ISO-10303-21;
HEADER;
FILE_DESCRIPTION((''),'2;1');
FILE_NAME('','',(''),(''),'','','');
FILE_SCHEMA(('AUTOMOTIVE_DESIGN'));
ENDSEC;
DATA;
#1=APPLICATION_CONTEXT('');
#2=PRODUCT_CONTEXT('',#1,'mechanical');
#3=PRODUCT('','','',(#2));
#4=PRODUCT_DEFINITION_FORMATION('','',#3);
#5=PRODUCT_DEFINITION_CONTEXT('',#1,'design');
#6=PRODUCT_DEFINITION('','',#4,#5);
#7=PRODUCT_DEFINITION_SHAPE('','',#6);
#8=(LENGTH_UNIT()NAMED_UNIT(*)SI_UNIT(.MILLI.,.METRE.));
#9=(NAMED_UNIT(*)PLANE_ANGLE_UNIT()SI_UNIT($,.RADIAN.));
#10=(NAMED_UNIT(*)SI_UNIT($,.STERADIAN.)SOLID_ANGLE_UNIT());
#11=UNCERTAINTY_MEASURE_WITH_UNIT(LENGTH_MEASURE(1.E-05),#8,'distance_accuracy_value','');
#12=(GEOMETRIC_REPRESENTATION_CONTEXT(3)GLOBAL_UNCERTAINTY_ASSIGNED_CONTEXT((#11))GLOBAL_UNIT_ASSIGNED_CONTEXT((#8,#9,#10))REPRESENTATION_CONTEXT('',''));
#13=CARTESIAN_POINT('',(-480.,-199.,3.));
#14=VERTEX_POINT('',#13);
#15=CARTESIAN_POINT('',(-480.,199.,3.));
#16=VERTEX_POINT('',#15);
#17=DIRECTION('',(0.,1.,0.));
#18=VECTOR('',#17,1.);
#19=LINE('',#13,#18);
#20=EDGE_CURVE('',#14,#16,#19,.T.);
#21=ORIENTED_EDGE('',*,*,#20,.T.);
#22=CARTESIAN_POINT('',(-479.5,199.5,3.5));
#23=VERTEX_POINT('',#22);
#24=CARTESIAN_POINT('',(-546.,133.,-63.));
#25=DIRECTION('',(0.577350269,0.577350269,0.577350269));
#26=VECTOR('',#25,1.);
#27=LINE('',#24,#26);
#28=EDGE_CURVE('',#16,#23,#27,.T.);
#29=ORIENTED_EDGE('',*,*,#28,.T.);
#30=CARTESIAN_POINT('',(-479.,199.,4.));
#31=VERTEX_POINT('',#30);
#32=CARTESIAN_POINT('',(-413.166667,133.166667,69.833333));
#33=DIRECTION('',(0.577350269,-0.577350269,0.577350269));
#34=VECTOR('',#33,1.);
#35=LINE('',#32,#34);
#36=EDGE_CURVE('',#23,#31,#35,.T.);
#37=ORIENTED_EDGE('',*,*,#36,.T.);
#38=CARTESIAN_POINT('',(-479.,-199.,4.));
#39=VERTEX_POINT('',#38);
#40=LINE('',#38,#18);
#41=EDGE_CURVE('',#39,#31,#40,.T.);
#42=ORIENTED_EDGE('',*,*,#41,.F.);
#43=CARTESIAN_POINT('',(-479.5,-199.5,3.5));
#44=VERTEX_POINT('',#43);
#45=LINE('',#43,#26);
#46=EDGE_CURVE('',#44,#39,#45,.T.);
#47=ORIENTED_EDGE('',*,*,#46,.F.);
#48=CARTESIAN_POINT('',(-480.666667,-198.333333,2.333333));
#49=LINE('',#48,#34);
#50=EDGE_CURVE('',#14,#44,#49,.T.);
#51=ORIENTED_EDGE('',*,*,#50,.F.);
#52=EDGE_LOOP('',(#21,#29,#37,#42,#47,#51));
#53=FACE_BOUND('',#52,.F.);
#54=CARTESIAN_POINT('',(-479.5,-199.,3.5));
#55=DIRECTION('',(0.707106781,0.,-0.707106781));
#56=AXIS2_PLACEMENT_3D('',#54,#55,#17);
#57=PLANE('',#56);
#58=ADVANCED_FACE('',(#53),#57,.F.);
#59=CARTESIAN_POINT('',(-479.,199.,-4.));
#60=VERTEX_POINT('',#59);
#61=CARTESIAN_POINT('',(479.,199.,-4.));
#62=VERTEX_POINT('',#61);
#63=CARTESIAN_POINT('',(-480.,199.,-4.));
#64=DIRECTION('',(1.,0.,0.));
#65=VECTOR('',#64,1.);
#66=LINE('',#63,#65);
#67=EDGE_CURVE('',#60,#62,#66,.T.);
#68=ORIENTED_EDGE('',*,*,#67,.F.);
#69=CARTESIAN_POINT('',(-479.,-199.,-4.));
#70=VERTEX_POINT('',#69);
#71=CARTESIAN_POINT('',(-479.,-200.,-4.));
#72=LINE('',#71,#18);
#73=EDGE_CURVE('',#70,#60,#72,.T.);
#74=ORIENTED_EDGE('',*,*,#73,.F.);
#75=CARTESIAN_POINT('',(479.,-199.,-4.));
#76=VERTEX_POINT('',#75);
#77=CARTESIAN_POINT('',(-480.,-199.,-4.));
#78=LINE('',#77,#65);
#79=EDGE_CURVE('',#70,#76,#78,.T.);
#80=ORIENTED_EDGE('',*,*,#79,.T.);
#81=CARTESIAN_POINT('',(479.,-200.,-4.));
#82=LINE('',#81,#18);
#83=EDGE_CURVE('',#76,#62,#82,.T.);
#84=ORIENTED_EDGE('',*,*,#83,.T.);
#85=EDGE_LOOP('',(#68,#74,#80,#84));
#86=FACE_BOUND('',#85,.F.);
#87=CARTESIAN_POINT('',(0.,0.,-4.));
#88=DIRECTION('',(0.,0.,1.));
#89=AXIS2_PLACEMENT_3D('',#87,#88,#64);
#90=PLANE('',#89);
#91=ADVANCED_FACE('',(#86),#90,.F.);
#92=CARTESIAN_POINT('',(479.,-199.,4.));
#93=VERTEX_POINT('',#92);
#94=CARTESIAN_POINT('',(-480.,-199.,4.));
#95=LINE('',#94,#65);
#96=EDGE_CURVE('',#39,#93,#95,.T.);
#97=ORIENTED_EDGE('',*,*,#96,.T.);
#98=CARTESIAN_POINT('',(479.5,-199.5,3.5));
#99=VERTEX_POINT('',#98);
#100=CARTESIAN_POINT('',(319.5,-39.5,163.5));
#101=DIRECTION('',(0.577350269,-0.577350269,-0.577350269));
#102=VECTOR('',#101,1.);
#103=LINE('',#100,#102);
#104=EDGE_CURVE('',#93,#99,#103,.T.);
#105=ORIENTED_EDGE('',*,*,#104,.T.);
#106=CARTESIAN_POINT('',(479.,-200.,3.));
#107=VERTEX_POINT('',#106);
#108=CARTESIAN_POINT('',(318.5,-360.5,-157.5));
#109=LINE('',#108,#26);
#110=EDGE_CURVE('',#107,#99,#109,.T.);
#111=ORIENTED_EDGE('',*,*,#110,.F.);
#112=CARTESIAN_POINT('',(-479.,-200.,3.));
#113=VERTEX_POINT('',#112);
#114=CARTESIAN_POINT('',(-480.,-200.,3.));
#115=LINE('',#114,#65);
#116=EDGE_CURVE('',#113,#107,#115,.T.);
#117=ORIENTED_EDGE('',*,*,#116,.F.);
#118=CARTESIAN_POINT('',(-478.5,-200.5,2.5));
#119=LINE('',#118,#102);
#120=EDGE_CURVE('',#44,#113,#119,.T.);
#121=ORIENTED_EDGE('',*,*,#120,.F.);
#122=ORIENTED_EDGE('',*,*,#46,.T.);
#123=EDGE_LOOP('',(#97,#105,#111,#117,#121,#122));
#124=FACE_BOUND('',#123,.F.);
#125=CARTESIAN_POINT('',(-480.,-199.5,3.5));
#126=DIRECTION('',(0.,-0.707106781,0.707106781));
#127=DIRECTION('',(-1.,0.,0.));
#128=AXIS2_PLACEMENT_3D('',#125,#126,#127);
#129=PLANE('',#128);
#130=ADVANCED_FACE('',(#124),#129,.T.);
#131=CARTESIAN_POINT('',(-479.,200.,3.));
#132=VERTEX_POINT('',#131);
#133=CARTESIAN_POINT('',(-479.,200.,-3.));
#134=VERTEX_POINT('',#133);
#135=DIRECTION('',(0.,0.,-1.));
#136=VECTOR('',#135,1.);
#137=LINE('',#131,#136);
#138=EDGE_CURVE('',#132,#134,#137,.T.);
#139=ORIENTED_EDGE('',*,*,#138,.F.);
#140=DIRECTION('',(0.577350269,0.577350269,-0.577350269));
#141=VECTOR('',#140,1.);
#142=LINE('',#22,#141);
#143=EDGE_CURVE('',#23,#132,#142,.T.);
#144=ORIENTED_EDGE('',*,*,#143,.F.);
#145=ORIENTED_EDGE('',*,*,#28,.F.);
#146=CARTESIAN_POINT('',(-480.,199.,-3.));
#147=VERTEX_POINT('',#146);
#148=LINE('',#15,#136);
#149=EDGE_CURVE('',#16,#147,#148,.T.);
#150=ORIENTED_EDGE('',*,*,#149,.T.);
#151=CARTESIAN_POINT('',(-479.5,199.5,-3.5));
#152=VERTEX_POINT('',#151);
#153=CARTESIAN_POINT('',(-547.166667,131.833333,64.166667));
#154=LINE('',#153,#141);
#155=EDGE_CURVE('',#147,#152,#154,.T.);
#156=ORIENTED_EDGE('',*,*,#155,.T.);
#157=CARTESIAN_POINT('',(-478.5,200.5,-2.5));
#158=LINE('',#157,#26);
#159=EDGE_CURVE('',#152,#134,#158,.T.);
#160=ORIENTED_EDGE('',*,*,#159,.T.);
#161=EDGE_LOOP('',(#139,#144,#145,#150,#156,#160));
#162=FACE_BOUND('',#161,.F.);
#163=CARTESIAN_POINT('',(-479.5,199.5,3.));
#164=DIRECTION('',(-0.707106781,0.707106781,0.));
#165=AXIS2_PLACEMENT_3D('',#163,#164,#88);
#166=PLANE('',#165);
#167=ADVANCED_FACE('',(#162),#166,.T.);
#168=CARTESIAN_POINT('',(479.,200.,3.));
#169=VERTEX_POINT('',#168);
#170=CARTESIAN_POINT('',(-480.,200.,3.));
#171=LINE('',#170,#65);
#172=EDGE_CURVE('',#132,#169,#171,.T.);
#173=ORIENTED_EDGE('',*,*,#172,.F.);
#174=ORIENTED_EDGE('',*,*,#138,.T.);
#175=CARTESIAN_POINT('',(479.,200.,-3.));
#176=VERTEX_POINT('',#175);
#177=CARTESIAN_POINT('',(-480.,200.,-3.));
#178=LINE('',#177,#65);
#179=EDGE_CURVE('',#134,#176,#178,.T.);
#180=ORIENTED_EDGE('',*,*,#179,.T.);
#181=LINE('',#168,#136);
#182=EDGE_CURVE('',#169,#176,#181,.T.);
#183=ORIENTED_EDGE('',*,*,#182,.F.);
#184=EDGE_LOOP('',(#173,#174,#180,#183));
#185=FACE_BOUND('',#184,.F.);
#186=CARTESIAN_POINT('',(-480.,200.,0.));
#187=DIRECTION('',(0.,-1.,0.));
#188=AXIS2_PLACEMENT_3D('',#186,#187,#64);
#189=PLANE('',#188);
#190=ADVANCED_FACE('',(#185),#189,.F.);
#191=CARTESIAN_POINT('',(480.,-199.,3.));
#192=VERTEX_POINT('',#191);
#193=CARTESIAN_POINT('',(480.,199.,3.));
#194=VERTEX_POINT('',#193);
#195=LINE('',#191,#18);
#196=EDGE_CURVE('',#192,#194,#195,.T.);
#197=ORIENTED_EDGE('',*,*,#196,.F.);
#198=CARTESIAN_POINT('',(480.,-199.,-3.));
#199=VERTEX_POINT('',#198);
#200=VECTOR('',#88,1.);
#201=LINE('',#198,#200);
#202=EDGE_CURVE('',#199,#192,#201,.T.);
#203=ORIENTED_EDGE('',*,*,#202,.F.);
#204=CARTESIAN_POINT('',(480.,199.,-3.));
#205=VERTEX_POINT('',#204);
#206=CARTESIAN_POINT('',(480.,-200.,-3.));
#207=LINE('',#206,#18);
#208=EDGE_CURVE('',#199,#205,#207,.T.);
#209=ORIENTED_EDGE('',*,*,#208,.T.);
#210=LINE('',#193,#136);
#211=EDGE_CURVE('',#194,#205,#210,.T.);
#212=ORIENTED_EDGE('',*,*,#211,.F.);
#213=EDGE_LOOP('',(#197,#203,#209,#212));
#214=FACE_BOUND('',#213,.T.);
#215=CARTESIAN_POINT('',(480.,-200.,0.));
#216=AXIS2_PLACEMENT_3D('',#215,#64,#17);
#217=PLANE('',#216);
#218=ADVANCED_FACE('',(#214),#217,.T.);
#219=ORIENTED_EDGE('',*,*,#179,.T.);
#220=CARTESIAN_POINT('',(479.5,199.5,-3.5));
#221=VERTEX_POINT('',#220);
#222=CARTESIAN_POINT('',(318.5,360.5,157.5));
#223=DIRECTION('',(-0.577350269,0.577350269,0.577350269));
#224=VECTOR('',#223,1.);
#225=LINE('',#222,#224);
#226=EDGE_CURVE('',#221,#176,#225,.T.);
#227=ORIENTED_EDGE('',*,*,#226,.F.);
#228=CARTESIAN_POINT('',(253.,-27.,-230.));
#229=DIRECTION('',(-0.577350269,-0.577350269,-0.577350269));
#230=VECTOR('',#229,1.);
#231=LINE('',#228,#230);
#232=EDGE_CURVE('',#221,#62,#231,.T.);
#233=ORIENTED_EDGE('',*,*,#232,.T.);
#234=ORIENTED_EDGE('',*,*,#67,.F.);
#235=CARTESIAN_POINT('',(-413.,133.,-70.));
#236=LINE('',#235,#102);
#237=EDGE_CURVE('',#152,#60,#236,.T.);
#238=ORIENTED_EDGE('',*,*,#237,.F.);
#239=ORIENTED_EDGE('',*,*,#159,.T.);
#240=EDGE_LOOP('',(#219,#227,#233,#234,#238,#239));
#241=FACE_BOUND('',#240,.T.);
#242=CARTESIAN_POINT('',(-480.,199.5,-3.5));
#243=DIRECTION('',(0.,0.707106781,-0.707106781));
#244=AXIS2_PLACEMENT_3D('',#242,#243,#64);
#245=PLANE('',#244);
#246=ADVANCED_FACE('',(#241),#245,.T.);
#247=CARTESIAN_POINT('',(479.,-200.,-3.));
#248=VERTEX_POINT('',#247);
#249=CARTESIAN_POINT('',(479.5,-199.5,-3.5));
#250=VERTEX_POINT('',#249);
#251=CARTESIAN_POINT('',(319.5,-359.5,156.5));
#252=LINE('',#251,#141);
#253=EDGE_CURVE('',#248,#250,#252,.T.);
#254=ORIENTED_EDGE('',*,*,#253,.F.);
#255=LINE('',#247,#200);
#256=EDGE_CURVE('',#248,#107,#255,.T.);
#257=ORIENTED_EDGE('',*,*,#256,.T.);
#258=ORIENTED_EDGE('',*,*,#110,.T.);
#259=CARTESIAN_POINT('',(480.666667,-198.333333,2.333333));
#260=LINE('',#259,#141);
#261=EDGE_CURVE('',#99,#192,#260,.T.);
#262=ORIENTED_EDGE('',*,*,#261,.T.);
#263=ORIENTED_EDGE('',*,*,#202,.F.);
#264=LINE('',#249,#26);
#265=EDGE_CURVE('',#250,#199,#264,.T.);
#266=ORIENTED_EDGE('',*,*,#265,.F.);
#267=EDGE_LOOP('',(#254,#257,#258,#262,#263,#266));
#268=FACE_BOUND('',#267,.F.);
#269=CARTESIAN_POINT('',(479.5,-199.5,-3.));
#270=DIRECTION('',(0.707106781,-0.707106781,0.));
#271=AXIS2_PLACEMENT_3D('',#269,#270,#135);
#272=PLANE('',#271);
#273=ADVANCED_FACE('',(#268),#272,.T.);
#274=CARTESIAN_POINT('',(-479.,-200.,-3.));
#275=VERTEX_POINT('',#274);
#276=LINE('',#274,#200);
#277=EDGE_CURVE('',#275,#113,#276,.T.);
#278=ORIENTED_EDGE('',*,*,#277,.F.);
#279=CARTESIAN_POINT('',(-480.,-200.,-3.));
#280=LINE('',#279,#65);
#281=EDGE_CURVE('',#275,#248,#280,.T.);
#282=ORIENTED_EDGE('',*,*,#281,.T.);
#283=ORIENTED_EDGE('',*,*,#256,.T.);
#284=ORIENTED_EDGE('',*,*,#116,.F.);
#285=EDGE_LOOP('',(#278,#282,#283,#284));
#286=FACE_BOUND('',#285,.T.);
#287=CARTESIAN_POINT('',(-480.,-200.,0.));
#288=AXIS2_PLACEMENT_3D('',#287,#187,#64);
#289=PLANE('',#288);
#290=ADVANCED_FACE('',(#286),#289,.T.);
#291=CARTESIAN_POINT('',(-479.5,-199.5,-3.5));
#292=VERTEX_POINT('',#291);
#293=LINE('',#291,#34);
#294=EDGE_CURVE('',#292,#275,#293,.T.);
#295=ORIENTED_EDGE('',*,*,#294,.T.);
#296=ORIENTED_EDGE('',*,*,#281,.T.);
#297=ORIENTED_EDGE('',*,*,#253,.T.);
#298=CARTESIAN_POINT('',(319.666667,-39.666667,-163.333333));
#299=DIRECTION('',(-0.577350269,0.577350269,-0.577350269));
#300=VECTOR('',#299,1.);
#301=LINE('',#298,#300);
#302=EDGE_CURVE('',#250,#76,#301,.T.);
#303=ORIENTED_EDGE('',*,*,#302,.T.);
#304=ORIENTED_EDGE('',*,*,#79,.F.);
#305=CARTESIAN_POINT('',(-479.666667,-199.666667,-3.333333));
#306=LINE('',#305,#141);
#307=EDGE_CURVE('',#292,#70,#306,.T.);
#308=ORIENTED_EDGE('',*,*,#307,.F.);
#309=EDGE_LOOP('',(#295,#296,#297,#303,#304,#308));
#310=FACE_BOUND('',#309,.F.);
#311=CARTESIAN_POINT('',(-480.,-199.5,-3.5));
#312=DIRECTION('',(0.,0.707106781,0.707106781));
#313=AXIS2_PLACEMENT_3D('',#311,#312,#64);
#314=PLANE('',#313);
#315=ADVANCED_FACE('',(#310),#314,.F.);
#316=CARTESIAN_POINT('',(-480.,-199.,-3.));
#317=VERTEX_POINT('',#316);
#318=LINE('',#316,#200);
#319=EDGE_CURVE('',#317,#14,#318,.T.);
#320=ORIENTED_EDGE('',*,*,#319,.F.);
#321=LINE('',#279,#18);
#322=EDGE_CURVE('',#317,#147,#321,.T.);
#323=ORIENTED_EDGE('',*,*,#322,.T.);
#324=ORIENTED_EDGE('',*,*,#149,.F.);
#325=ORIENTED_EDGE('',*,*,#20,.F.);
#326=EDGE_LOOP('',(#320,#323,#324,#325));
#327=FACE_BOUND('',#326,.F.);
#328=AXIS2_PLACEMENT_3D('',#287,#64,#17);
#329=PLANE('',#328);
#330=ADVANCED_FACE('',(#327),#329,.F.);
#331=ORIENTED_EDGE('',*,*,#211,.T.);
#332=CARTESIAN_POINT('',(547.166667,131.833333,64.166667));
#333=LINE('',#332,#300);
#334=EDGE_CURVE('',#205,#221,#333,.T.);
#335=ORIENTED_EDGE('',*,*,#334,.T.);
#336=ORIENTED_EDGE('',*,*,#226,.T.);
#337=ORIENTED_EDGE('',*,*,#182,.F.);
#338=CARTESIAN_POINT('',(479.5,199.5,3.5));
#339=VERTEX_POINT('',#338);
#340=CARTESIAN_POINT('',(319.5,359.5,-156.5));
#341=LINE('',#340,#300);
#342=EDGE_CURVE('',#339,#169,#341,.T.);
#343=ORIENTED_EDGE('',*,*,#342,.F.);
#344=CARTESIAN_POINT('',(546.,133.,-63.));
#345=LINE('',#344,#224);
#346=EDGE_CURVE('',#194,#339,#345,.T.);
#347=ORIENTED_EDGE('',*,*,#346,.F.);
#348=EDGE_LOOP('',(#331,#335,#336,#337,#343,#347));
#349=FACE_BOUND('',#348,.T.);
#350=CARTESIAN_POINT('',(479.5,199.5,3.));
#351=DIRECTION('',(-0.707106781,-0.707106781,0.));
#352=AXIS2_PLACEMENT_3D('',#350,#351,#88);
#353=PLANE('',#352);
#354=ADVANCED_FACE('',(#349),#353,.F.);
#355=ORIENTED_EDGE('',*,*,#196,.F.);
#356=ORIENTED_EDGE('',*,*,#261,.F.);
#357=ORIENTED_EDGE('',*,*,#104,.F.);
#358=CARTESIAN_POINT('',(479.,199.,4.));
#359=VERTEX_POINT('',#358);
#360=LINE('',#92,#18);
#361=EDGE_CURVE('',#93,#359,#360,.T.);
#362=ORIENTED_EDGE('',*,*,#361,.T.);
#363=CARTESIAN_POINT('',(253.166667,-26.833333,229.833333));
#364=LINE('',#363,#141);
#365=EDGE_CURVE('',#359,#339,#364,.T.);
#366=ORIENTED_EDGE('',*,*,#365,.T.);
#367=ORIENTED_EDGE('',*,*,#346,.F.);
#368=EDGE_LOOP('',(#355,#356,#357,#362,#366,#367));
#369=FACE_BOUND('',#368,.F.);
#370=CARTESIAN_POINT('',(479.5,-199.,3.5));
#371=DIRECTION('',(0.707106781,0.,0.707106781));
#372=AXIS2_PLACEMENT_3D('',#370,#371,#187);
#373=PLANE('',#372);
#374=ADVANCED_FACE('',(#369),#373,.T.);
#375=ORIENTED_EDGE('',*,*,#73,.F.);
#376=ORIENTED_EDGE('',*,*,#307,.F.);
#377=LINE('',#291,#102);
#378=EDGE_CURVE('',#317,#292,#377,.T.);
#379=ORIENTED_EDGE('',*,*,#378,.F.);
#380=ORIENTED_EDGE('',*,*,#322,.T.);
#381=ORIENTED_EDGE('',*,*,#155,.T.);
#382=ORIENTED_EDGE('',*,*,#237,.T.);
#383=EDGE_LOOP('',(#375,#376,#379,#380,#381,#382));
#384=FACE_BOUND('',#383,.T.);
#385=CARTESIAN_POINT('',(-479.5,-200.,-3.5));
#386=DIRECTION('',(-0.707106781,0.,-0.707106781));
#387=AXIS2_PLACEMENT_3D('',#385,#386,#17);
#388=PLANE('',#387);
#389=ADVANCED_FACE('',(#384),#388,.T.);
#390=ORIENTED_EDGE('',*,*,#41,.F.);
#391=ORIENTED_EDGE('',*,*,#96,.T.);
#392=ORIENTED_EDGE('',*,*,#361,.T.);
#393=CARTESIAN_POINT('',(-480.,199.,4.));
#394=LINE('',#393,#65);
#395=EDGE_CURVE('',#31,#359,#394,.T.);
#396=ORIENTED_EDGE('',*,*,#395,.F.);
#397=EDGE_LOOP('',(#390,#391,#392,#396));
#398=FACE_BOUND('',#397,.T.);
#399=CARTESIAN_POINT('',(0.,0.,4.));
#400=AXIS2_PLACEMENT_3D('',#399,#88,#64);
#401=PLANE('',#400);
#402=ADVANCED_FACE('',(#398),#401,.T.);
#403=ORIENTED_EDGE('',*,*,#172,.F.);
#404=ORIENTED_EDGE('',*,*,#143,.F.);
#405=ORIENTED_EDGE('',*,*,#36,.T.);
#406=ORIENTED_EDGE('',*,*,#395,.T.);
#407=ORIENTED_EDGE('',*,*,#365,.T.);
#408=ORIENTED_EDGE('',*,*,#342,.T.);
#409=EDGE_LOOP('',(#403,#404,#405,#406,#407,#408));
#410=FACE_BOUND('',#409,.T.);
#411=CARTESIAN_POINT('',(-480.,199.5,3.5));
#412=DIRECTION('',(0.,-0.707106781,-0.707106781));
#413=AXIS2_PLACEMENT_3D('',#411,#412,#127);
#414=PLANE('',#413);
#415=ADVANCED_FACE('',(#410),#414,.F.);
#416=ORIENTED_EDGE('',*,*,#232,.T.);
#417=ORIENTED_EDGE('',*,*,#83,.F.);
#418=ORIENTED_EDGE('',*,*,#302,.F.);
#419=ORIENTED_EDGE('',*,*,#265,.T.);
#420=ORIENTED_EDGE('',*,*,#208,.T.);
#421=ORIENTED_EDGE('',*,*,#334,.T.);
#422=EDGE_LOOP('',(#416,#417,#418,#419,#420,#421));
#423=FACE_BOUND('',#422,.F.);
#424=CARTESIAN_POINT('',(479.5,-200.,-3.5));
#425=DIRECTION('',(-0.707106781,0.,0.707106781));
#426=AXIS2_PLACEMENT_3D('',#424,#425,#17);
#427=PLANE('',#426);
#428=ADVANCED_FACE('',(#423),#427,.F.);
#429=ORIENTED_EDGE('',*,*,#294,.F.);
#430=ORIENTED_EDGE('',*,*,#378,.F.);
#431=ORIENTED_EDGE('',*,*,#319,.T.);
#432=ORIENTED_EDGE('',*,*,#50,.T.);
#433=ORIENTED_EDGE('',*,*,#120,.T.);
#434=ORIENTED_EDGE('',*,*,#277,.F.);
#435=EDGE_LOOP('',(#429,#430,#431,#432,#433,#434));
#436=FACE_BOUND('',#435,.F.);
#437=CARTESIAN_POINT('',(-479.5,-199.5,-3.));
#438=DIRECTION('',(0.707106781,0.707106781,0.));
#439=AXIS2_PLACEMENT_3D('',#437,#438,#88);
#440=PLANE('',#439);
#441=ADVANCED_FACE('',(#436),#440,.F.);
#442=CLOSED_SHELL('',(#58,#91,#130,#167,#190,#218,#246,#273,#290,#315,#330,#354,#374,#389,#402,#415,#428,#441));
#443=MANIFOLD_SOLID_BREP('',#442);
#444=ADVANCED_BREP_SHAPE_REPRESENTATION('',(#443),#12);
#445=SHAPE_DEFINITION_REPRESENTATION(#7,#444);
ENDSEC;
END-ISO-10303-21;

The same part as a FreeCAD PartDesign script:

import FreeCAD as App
import Part
import Sketcher


def edges_at(feature, points):
    """Names of the edges that pass closest to the given points."""
    edges = feature.Shape.Edges
    near = lambda p: min(range(len(edges)), key=lambda i: edges[i].distToShape(Part.Vertex(*p))[0])
    return sorted({f"Edge{near(p) + 1}" for p in points})

doc = App.newDocument("Part")
body = doc.addObject("PartDesign::Body", "Body")

sketch1 = body.newObject("Sketcher::SketchObject", "Sketch")
sketch1.AttachmentSupport = (doc.getObject("XY_Plane"), [""])
sketch1.MapMode = "FlatFace"
sketch1.addGeometry(Part.LineSegment(App.Vector(-480, 200, 0), App.Vector(-480, -200, 0)), False)
sketch1.addGeometry(Part.LineSegment(App.Vector(-480, -200, 0), App.Vector(480, -200, 0)), False)
sketch1.addGeometry(Part.LineSegment(App.Vector(480, -200, 0), App.Vector(480, 200, 0)), False)
sketch1.addGeometry(Part.LineSegment(App.Vector(480, 200, 0), App.Vector(-480, 200, 0)), False)
sketch1.addConstraint(Sketcher.Constraint("Coincident", 0, 2, 1, 1))
sketch1.addConstraint(Sketcher.Constraint("Coincident", 1, 2, 2, 1))
sketch1.addConstraint(Sketcher.Constraint("Coincident", 2, 2, 3, 1))
sketch1.addConstraint(Sketcher.Constraint("Coincident", 3, 2, 0, 1))
sketch1.addConstraint(Sketcher.Constraint("Vertical", 0))
sketch1.addConstraint(Sketcher.Constraint("Horizontal", 1))
sketch1.addConstraint(Sketcher.Constraint("Vertical", 2))
sketch1.addConstraint(Sketcher.Constraint("Horizontal", 3))
sketch1.addConstraint(Sketcher.Constraint("Symmetric", 0, 2, 2, 2, -1, 1))
sketch1.addConstraint(Sketcher.Constraint("DistanceX", 1, 1, 1, 2, 960.0))
sketch1.addConstraint(Sketcher.Constraint("DistanceY", 0, 2, 0, 1, 400.0))
pad1 = body.newObject("PartDesign::Pad", "Pad")
pad1.Profile = sketch1
pad1.Length = 8
pad1.Midplane = True
doc.recompute()

chamfer = body.newObject("PartDesign::Chamfer", "Chamfer")
chamfer.Base = (pad1, edges_at(pad1, [(0, -200, 4)]))
chamfer.Size = 1
doc.recompute()

chamfer2 = body.newObject("PartDesign::Chamfer", "Chamfer001")
chamfer2.Base = (chamfer, edges_at(chamfer, [(480, 0.5, 4)]))
chamfer2.Size = 1
doc.recompute()

chamfer3 = body.newObject("PartDesign::Chamfer", "Chamfer002")
chamfer3.Base = (chamfer2, edges_at(chamfer2, [(-0.5, 200, 4)]))
chamfer3.Size = 1
doc.recompute()

chamfer4 = body.newObject("PartDesign::Chamfer", "Chamfer003")
chamfer4.Base = (chamfer3, edges_at(chamfer3, [
    (0, -200, -4),
    (-480, 0, -4),
    (0, 200, -4),
    (480, 0, -4),
]))
chamfer4.Size = 1
doc.recompute()

chamfer5 = body.newObject("PartDesign::Chamfer", "Chamfer004")
chamfer5.Base = (chamfer4, edges_at(chamfer4, [(-480, 0, 4)]))
chamfer5.Size = 1
doc.recompute()

chamfer6 = body.newObject("PartDesign::Chamfer", "Chamfer005")
chamfer6.Base = (chamfer5, edges_at(chamfer5, [(-480, 200, 0)]))
chamfer6.Size = 1
doc.recompute()

chamfer7 = body.newObject("PartDesign::Chamfer", "Chamfer006")
chamfer7.Base = (chamfer6, edges_at(chamfer6, [(-480, -200, 0)]))
chamfer7.Size = 1
doc.recompute()

chamfer8 = body.newObject("PartDesign::Chamfer", "Chamfer007")
chamfer8.Base = (chamfer7, edges_at(chamfer7, [(480, -200, 0)]))
chamfer8.Size = 1
doc.recompute()

chamfer9 = body.newObject("PartDesign::Chamfer", "Chamfer008")
chamfer9.Base = (chamfer8, edges_at(chamfer8, [(480, 200, 0)]))
chamfer9.Size = 1

doc.recompute()
